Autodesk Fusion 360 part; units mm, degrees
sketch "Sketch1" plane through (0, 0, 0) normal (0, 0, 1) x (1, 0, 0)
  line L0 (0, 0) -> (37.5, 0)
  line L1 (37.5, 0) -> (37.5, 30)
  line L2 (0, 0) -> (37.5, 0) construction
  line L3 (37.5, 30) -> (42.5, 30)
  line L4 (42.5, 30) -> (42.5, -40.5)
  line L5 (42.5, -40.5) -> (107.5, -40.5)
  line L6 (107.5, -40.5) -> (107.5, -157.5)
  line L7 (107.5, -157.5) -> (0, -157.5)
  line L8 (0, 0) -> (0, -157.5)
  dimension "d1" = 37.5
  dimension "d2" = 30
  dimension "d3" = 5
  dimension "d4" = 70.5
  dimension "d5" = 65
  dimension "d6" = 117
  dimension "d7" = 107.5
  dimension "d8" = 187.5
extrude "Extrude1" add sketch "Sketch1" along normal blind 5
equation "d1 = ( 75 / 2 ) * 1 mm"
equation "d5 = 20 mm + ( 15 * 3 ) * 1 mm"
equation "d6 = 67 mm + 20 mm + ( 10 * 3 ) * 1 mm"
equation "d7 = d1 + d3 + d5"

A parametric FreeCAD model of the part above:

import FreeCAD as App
import Part
import Sketcher

V = App.Vector

doc = App.newDocument("Part")
body = doc.addObject("PartDesign::Body", "Body")

sketch1 = body.newObject("Sketcher::SketchObject", "Sketch")
sketch1.AttachmentSupport = (doc.getObject("XY_Plane"), [""])
sketch1.MapMode = "FlatFace"
sketch1.addGeometry([
    Part.LineSegment(V(37.5, 0, 0), V(0, 0, 0)),
    Part.LineSegment(V(0, 0, 0), V(0, -157.5, 0)),
    Part.LineSegment(V(0, -157.5, 0), V(107.5, -157.5, 0)),
    Part.LineSegment(V(107.5, -157.5, 0), V(107.5, -40.5, 0)),
    Part.LineSegment(V(107.5, -40.5, 0), V(42.5, -40.5, 0)),
    Part.LineSegment(V(42.5, -40.5, 0), V(42.5, 30, 0)),
    Part.LineSegment(V(42.5, 30, 0), V(37.5, 30, 0)),
    Part.LineSegment(V(37.5, 30, 0), V(37.5, 0, 0)),
], False)
sketch1.addConstraint([
    Sketcher.Constraint("Coincident", 0, 2, 1, 1),
    Sketcher.Constraint("Coincident", 1, 2, 2, 1),
    Sketcher.Constraint("Coincident", 2, 2, 3, 1),
    Sketcher.Constraint("Coincident", 3, 2, 4, 1),
    Sketcher.Constraint("Coincident", 4, 2, 5, 1),
    Sketcher.Constraint("Coincident", 5, 2, 6, 1),
    Sketcher.Constraint("Coincident", 6, 2, 7, 1),
    Sketcher.Constraint("Coincident", 7, 2, 0, 1),
    Sketcher.Constraint("Horizontal", 0),
    Sketcher.Constraint("Vertical", 1),
    Sketcher.Constraint("Horizontal", 2),
    Sketcher.Constraint("Vertical", 3),
    Sketcher.Constraint("Horizontal", 4),
    Sketcher.Constraint("Vertical", 5),
    Sketcher.Constraint("Horizontal", 6),
    Sketcher.Constraint("Vertical", 7),
    Sketcher.Constraint("Coincident", 0, 2, -1, 1),
    Sketcher.Constraint("DistanceX", 4, 2, 4, 1, 65.0),
    Sketcher.Constraint("DistanceX", 6, 2, 6, 1, 5.0),
    Sketcher.Constraint("DistanceY", 3, 1, 3, 2, 117.0),
    Sketcher.Constraint("DistanceY", 7, 2, 7, 1, 30.0),
    Sketcher.Constraint("DistanceX", 0, 2, 0, 1, 37.5),
    Sketcher.Constraint("DistanceY", 5, 1, 5, 2, 70.5),
])
pad1 = body.newObject("PartDesign::Pad", "Pad")
pad1.Profile = sketch1
pad1.Length = 5

doc.recompute()
